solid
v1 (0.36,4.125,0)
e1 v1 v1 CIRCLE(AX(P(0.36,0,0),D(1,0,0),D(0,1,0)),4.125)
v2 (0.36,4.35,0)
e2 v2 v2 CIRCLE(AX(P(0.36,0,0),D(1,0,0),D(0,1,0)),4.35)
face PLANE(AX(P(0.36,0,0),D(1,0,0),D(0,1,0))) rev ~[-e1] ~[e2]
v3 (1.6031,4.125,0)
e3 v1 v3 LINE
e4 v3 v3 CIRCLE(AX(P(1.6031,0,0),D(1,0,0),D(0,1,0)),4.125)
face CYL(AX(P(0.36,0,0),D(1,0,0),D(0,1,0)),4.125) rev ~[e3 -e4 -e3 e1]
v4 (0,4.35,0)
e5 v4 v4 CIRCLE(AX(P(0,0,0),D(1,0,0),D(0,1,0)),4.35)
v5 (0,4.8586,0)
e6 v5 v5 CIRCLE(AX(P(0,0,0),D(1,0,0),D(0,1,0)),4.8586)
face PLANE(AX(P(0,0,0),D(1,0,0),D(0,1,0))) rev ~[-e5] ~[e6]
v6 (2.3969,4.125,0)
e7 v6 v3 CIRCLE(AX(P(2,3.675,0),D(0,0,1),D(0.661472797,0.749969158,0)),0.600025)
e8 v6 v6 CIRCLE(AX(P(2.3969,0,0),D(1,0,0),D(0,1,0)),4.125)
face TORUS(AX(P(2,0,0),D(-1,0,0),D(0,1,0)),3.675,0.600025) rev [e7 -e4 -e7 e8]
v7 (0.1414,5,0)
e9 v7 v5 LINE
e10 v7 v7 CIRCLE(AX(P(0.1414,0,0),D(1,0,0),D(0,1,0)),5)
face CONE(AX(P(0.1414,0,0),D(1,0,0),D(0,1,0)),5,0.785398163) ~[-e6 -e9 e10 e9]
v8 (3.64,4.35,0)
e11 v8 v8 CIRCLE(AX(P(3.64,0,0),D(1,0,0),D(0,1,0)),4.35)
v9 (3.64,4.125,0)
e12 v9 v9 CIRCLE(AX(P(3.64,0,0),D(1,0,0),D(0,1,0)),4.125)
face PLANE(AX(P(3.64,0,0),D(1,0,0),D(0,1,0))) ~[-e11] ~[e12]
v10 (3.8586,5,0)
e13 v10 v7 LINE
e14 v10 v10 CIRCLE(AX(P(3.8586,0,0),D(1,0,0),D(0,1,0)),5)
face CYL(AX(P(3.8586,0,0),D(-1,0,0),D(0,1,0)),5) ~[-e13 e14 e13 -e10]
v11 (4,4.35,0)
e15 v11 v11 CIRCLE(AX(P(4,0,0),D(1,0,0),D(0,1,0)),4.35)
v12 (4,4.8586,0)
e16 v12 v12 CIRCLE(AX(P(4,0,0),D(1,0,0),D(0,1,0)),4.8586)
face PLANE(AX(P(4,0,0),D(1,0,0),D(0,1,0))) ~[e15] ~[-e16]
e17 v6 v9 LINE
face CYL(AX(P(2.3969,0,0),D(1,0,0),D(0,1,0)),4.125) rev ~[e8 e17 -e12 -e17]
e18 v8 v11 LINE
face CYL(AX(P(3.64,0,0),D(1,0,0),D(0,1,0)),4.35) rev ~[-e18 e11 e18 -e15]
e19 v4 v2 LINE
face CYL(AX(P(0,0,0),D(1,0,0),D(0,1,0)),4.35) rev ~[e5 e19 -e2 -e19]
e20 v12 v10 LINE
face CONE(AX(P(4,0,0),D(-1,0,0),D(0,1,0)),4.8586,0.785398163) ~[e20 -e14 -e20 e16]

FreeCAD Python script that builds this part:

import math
import FreeCAD as App
import Part
import Sketcher

V = App.Vector
Q = App.Units.Quantity

doc = App.newDocument("Part")
params = doc.addObject("Spreadsheet::Sheet", "Params")
for row, (alias, value) in enumerate([
    ("sketch1_radius", "0.6 mm"),
    ("sketch1_length", "0.2 mm"),
    ("sketch1_width", "0.36 mm"),
    ("revolution_angle", "360 deg"),
], start=1):
    params.set(f"A{row}", alias)
    params.set(f"B{row}", "=" + value)
    params.setAlias(f"B{row}", alias)

body = doc.addObject("PartDesign::Body", "Body")

sketch1 = doc.addObject("Sketcher::SketchObject", "Sketch")
body.addObject(sketch1)
sketch1.AttachmentSupport = (doc.XY_Plane, [""])
sketch1.MapMode = "FlatFace"
sketch1.addGeometry([
    Part.LineSegment(V(0.1414, 5, 0), V(0, 4.8586, 0)),
    Part.LineSegment(V(0, 4.8586, 0), V(0, 4.35, 0)),
    Part.LineSegment(V(0, 4.35, 0), V(0.36, 4.35, 0)),
    Part.LineSegment(V(0.36, 4.35, 0), V(0.36, 4.125, 0)),
    Part.LineSegment(V(0.36, 4.125, 0), V(1.6031, 4.125, 0)),
    Part.ArcOfCircle(Part.Circle(V(2, 3.675, 0), V(0, 0, 1), 0.600025), math.radians(48.587706), math.radians(131.412294)),
    Part.LineSegment(V(2.3969, 4.125, 0), V(3.64, 4.125, 0)),
    Part.LineSegment(V(3.64, 4.125, 0), V(3.64, 4.35, 0)),
    Part.LineSegment(V(3.64, 4.35, 0), V(4, 4.35, 0)),
    Part.LineSegment(V(4, 4.35, 0), V(4, 4.8586, 0)),
    Part.LineSegment(V(4, 4.8586, 0), V(3.8586, 5, 0)),
    Part.LineSegment(V(3.8586, 5, 0), V(0.1414, 5, 0)),
], False)
sketch1.addConstraint([
    Sketcher.Constraint("Coincident", 0, 2, 1, 1),
    Sketcher.Constraint("Coincident", 1, 2, 2, 1),
    Sketcher.Constraint("Coincident", 2, 2, 3, 1),
    Sketcher.Constraint("Coincident", 3, 2, 4, 1),
    Sketcher.Constraint("Coincident", 4, 2, 5, 2),
    Sketcher.Constraint("Coincident", 5, 1, 6, 1),
    Sketcher.Constraint("Coincident", 6, 2, 7, 1),
    Sketcher.Constraint("Coincident", 7, 2, 8, 1),
    Sketcher.Constraint("Coincident", 8, 2, 9, 1),
    Sketcher.Constraint("Coincident", 9, 2, 10, 1),
    Sketcher.Constraint("Coincident", 10, 2, 11, 1),
    Sketcher.Constraint("Coincident", 11, 2, 0, 1),
    Sketcher.Constraint("Vertical", 1),
    Sketcher.Constraint("Horizontal", 2),
    Sketcher.Constraint("Vertical", 3),
    Sketcher.Constraint("Horizontal", 4),
    Sketcher.Constraint("Horizontal", 6),
    Sketcher.Constraint("Vertical", 7),
    Sketcher.Constraint("Horizontal", 8),
    Sketcher.Constraint("Vertical", 9),
    Sketcher.Constraint("Horizontal", 11),
    Sketcher.Constraint("PointOnObject", 0, 2, -2),
    Sketcher.Constraint("Perpendicular", 0, 10),
    Sketcher.Constraint("Horizontal", 4, 2, 5, 1),
    Sketcher.Constraint("Horizontal", 2, 2, 7, 2),
    Sketcher.Constraint("Horizontal", 0, 2, 9, 2),
    Sketcher.Constraint("Equal", 4, 6),
    Sketcher.Constraint("Equal", 2, 8),
    Sketcher.Constraint("Equal", 0, 10),
    Sketcher.Constraint("Radius", 5, Q("0.6 mm")),
    Sketcher.Constraint("DistanceX", -1, 1, 5, 3, Q("2 mm")),
    Sketcher.Constraint("DistanceY", -1, 1, 10, 2, Q("5 mm")),
    Sketcher.Constraint("Distance", 0, Q("0.2 mm")),
    Sketcher.Constraint("DistanceX", 2, 1, 2, 2, Q("0.36 mm")),
    Sketcher.Constraint("DistanceX", 4, 1, 4, 2, Q("1.243 mm")),
    Sketcher.Constraint("DistanceY", 3, 2, 3, 1, Q("0.225 mm")),
    Sketcher.Constraint("DistanceY", -1, 1, 1, 2, Q("4.35 mm")),
])
sketch1.setExpression("Constraints[29]", "Params.sketch1_radius")
sketch1.setExpression("Constraints[32]", "Params.sketch1_length")
sketch1.setExpression("Constraints[33]", "Params.sketch1_width")
revolution = doc.addObject("PartDesign::Revolution", "Revolution")
body.addObject(revolution)
revolution.Profile = sketch1
revolution.ReferenceAxis = (sketch1, ["H_Axis"])
revolution.setExpression("Angle", "Params.revolution_angle")

doc.recompute()
